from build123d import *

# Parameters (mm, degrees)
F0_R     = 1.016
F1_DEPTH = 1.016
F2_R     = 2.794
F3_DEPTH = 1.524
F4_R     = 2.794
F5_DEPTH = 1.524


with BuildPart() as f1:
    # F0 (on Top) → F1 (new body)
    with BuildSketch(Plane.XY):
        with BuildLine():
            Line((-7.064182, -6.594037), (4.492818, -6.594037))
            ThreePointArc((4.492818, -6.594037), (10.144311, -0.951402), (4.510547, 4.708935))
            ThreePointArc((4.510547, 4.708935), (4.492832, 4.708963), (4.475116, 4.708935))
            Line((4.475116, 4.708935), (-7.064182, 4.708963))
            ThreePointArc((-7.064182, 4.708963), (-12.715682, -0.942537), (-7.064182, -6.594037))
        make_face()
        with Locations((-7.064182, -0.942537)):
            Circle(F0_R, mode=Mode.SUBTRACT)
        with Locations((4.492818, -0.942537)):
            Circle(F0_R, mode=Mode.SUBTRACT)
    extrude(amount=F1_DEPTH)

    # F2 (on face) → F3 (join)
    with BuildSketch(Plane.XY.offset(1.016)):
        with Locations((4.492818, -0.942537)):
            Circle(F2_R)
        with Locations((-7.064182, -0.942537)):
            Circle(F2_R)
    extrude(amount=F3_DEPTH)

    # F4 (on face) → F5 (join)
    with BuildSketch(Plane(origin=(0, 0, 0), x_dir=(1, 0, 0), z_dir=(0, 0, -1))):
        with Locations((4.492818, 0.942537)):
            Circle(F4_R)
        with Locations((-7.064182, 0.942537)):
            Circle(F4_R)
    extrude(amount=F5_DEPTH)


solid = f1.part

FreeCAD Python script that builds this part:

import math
import FreeCAD as App
import Part
import Sketcher

V = App.Vector
Q = App.Units.Quantity

doc = App.newDocument("Part")
body = doc.addObject("PartDesign::Body", "Body")

# Sketch on XY plane
sketch1 = body.newObject("Sketcher::SketchObject", "Sketch")
sketch1.AttachmentSupport = (doc.getObject("XY_Plane"), [""])
sketch1.MapMode = "FlatFace"
sketch1.addGeometry([
    Part.LineSegment(V(-7.064182, -6.594037, 0), V(4.492818, -6.594037, 0)),  # 0
    Part.ArcOfCircle(Part.Circle(V(4.492818, -0.942537, 0), V(0, 0, 1), 5.6515), math.radians(-90), math.radians(89.820261)),  # 1
    Part.ArcOfCircle(Part.Circle(V(4.492832, -0.895318, 0), V(0, 0, 1), 5.604281), math.radians(89.818884), math.radians(90.181116)),  # 2
    Part.LineSegment(V(4.475116, 4.708935, 0), V(-7.064182, 4.708963, 0)),  # 3
    Part.ArcOfCircle(Part.Circle(V(-7.064182, -0.942537, 0), V(0, 0, 1), 5.6515), math.radians(90), math.radians(270)),  # 4
    Part.Circle(V(-7.064182, -0.942537, 0), V(0, 0, 1), 1.016),  # 5
    Part.Circle(V(4.492818, -0.942537, 0), V(0, 0, 1), 1.016),  # 6
], False)
sketch1.addConstraint([
    Sketcher.Constraint("Tangent", 0, 2, 1, 1),
    Sketcher.Constraint("Coincident", 1, 2, 2, 1),
    Sketcher.Constraint("Coincident", 2, 2, 3, 1),
    Sketcher.Constraint("Coincident", 3, 2, 4, 1),
    Sketcher.Constraint("Tangent", 4, 2, 0, 1),
    Sketcher.Constraint("Horizontal", 0),
    Sketcher.Constraint("Coincident", 5, 3, 4, 3),
    Sketcher.Constraint("Coincident", 6, 3, 1, 3),
    Sketcher.Constraint("Equal", 1, 4),
    Sketcher.Constraint("Equal", 5, 6),
    Sketcher.Constraint("Horizontal", 1, 2, 2, 2),
    Sketcher.Constraint("Vertical", 5, 3, 3, 2),
    Sketcher.Constraint("Diameter", 5, Q("0.08 in")),
    Sketcher.Constraint("Radius", 1, Q("0.2225 in")),
    Sketcher.Constraint("DistanceX", 0, 1, 0, 2, Q("0.455 in")),
    Sketcher.Constraint("Radius", 2, 5.604281),
    Sketcher.Constraint("Distance", 3, 11.539298),
    Sketcher.Constraint("DistanceX", -1, 1, 1, 3, 4.492818),
    Sketcher.Constraint("DistanceX", -1, 1, 2, 3, 4.492832),
    Sketcher.Constraint("DistanceY", 1, 3, -1, 1, 0.942537),
])
pad1 = body.newObject("PartDesign::Pad", "Pad")
pad1.Profile = sketch1
pad1.Length = Q("0.04 in")

# Sketch on XY plane
sketch2 = body.newObject("Sketcher::SketchObject", "Sketch001")
sketch2.AttachmentSupport = (doc.getObject("XY_Plane"), [""])
sketch2.MapMode = "FlatFace"
sketch2.AttachmentOffset = App.Placement(V(0, 0, 0.04 * 25.4), App.Rotation())
sketch2.addGeometry([
    Part.Circle(V(4.492818, -0.942537, 0), V(0, 0, 1), 2.794),
    Part.Circle(V(-7.064182, -0.942537, 0), V(0, 0, 1), 2.794),
], False)
sketch2.addConstraint([
    Sketcher.Constraint("Equal", 0, 1),
    Sketcher.Constraint("Horizontal", 0, 3, 1, 3),
    Sketcher.Constraint("Diameter", 0, Q("0.22 in")),
    Sketcher.Constraint("DistanceX", 1, 3, 0, 3, Q("0.455 in")),
    Sketcher.Constraint("DistanceX", 1, 3, -1, 1, 7.064182),
    Sketcher.Constraint("DistanceY", 0, 3, -1, 1, 0.942537),
])
pad2 = body.newObject("PartDesign::Pad", "Pad001")
pad2.Profile = sketch2
pad2.Length = Q("0.06 in")

# Sketch on XY plane
sketch3 = body.newObject("Sketcher::SketchObject", "Sketch002")
sketch3.AttachmentSupport = (doc.getObject("XY_Plane"), [""])
sketch3.MapMode = "FlatFace"
sketch3.addGeometry([
    Part.Circle(V(4.492818, -0.942537, 0), V(0, 0, 1), 2.794),
    Part.Circle(V(-7.064182, -0.942537, 0), V(0, 0, 1), 2.794),
], False)
sketch3.addConstraint([
    Sketcher.Constraint("Equal", 0, 1),
    Sketcher.Constraint("Horizontal", 0, 3, 1, 3),
    Sketcher.Constraint("Diameter", 0, Q("0.22 in")),
    Sketcher.Constraint("DistanceX", 1, 3, 0, 3, Q("0.455 in")),
    Sketcher.Constraint("DistanceX", 1, 3, -1, 1, 7.064182),
    Sketcher.Constraint("DistanceY", 0, 3, -1, 1, 0.942537),
])
pad3 = body.newObject("PartDesign::Pad", "Pad002")
pad3.Profile = sketch3
pad3.Length = Q("0.06 in")
pad3.Reversed = True

doc.recompute()
